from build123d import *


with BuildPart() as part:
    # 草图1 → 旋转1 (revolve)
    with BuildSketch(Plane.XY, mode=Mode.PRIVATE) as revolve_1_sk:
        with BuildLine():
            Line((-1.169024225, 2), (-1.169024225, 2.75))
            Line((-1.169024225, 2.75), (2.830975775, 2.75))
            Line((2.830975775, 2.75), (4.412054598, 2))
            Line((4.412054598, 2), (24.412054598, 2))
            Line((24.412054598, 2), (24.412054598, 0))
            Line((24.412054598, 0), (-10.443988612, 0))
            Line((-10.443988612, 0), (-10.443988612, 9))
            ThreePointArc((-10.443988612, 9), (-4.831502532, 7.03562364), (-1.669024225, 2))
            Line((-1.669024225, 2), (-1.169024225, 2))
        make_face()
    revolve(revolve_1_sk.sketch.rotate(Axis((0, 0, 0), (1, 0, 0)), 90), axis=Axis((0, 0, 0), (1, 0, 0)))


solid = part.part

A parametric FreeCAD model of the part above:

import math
import FreeCAD as App
import Part
import Sketcher
Q = App.Units.Quantity

doc = App.newDocument("Part")
body = doc.addObject("PartDesign::Body", "Body")

sketch1 = body.newObject("Sketcher::SketchObject", "Sketch")
sketch1.AttachmentSupport = (doc.getObject("XY_Plane"), [""])
sketch1.MapMode = "FlatFace"
sketch1.addGeometry(Part.LineSegment(App.Vector(-1.2, 2.8, 0), App.Vector(-1.2, 2, 0)), False)
sketch1.addGeometry(Part.LineSegment(App.Vector(-1.2, 2, 0), App.Vector(-1.7, 2, 0)), False)
sketch1.addGeometry(Part.ArcOfCircle(Part.Circle(App.Vector(-10.4, 0, 0), App.Vector(0, 0, 1), 9), math.radians(13), math.radians(90)), False)
sketch1.addGeometry(Part.LineSegment(App.Vector(-10.4, 9, 0), App.Vector(-10.4, 0, 0)), False)
sketch1.addGeometry(Part.LineSegment(App.Vector(-10.4, 0, 0), App.Vector(24.4, 0, 0)), False)
sketch1.addGeometry(Part.LineSegment(App.Vector(24.4, 0, 0), App.Vector(24.4, 2, 0)), False)
sketch1.addGeometry(Part.LineSegment(App.Vector(24.4, 2, 0), App.Vector(4.4, 2, 0)), False)
sketch1.addGeometry(Part.LineSegment(App.Vector(4.4, 2, 0), App.Vector(2.8, 2.8, 0)), False)
sketch1.addGeometry(Part.LineSegment(App.Vector(2.8, 2.8, 0), App.Vector(-1.2, 2.8, 0)), False)
sketch1.addConstraint(Sketcher.Constraint("Coincident", 0, 2, 1, 1))
sketch1.addConstraint(Sketcher.Constraint("Coincident", 1, 2, 2, 1))
sketch1.addConstraint(Sketcher.Constraint("Coincident", 2, 2, 3, 1))
sketch1.addConstraint(Sketcher.Constraint("Coincident", 3, 2, 4, 1))
sketch1.addConstraint(Sketcher.Constraint("Coincident", 4, 2, 5, 1))
sketch1.addConstraint(Sketcher.Constraint("Coincident", 5, 2, 6, 1))
sketch1.addConstraint(Sketcher.Constraint("Coincident", 6, 2, 7, 1))
sketch1.addConstraint(Sketcher.Constraint("Coincident", 7, 2, 8, 1))
sketch1.addConstraint(Sketcher.Constraint("Coincident", 8, 2, 0, 1))
sketch1.addConstraint(Sketcher.Constraint("Vertical", 0))
sketch1.addConstraint(Sketcher.Constraint("Horizontal", 1))
sketch1.addConstraint(Sketcher.Constraint("Vertical", 3))
sketch1.addConstraint(Sketcher.Constraint("Horizontal", 4))
sketch1.addConstraint(Sketcher.Constraint("Vertical", 5))
sketch1.addConstraint(Sketcher.Constraint("Horizontal", 6))
sketch1.addConstraint(Sketcher.Constraint("Horizontal", 8))
sketch1.addConstraint(Sketcher.Constraint("Coincident", 3, 2, 2, 3))
sketch1.addConstraint(Sketcher.Constraint("PointOnObject", 2, 3, -1))
sketch1.addConstraint(Sketcher.Constraint("Horizontal", 1, 2, 5, 2))
sketch1.addConstraint(Sketcher.Constraint("Radius", 2, Q("9 mm")))
sketch1.addConstraint(Sketcher.Constraint("DistanceX", 6, 2, 6, 1, Q("20 mm")))
sketch1.addConstraint(Sketcher.Constraint("DistanceX", 8, 2, 8, 1, Q("4 mm")))
sketch1.addConstraint(Sketcher.Constraint("DistanceY", 5, 1, 5, 2, Q("2 mm")))
sketch1.addConstraint(Sketcher.Constraint("DistanceX", 1, 2, 1, 1, Q("0.5 mm")))
sketch1.addConstraint(Sketcher.Constraint("DistanceY", 0, 2, 0, 1, Q("0.75 mm")))
sketch1.addConstraint(Sketcher.Constraint("DistanceX", 4, 1, 4, 2, Q("34.856043 mm")))
sketch1.addConstraint(Sketcher.Constraint("DistanceX", 2, 3, -1, 1, Q("10.443989 mm")))
revolution = body.newObject("PartDesign::Revolution", "Revolution")
revolution.Profile = sketch1
revolution.ReferenceAxis = (sketch1, ["H_Axis"])
revolution.Angle = 360

doc.recompute()
